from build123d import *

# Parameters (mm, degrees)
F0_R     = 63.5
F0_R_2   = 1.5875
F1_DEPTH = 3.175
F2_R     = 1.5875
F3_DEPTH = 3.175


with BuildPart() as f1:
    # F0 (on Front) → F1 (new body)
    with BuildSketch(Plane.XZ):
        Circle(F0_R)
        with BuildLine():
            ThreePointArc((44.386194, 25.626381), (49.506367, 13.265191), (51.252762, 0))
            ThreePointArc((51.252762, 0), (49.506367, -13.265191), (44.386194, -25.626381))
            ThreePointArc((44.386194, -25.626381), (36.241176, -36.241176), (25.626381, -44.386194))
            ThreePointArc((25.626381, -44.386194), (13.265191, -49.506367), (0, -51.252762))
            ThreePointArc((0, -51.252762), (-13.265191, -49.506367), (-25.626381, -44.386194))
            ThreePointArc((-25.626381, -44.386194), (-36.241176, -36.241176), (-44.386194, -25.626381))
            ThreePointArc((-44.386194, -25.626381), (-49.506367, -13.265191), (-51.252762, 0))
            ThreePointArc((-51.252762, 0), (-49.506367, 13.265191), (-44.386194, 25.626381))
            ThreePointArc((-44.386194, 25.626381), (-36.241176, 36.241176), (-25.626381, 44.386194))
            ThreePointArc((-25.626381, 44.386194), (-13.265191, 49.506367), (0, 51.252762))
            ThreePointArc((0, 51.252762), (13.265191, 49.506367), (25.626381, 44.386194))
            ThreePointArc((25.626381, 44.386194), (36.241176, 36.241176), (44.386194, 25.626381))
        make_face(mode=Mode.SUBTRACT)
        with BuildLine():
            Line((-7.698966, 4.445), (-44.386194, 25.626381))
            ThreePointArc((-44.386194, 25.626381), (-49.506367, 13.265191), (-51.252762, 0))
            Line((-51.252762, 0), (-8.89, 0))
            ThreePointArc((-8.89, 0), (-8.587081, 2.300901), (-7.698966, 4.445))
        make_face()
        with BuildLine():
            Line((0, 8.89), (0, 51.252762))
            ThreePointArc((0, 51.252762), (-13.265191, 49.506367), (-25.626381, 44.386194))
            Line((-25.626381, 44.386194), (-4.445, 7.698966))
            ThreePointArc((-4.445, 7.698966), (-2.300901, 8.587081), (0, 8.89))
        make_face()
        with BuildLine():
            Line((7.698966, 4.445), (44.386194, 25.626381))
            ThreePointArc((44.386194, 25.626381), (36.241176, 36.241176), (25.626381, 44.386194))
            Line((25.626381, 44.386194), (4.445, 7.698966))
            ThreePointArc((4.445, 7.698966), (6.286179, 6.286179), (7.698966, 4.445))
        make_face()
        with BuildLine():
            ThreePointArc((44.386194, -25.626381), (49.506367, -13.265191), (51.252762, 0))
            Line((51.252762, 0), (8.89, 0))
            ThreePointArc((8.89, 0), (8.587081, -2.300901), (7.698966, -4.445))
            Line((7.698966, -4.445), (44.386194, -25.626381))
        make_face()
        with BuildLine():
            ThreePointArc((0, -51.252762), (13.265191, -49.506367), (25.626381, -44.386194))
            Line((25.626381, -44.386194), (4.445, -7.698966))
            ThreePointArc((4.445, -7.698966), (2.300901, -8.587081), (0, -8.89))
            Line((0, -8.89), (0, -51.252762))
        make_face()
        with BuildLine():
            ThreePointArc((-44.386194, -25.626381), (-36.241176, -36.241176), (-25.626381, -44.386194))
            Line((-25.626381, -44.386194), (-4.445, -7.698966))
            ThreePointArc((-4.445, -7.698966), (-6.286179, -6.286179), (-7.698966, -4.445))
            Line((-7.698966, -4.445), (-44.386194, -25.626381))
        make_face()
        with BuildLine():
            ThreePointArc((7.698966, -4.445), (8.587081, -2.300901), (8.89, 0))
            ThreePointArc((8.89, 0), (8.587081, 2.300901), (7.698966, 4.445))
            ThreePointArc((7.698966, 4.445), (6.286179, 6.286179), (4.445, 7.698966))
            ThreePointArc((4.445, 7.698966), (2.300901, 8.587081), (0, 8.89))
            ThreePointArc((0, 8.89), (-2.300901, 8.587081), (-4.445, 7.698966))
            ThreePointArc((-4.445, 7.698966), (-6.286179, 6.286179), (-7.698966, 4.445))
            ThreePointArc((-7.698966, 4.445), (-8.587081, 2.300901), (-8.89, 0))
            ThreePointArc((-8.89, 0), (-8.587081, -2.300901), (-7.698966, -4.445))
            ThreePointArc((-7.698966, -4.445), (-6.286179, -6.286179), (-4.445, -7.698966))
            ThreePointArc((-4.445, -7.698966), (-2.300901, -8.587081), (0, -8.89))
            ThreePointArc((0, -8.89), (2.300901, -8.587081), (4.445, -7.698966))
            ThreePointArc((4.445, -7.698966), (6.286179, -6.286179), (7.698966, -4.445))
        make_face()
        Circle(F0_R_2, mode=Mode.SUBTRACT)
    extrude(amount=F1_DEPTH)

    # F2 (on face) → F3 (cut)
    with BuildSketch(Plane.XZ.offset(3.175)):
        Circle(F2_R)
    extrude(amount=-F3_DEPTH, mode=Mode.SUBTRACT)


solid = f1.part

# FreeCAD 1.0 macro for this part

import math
import FreeCAD as App
import Part
import Sketcher
from FreeCAD import Vector
Q = App.Units.Quantity

doc = App.newDocument("Part")
params = doc.addObject("Spreadsheet::Sheet", "Params")
for row, (alias, value) in enumerate([
    ("sketch1_diameter", "5 in"),
    ("sketch1_diameter2", "0.125 in"),
    ("pad1_length", "0.125 in"),
    ("sketch2_diameter", "0.125 in"),
    ("pocket1_length", "0.125 in"),
], start=1):
    params.set(f"A{row}", alias)
    params.set(f"B{row}", "=" + value)
    params.setAlias(f"B{row}", alias)

body = doc.addObject("PartDesign::Body", "Body")

sketch1 = doc.addObject("Sketcher::SketchObject", "Sketch")
body.addObject(sketch1)
sketch1.AttachmentSupport = (doc.XZ_Plane, [""])
sketch1.MapMode = "FlatFace"
sketch1.addGeometry([
    Part.Circle(Vector(0, 0, 0), Vector(0, 0, 1), 63.5),
    Part.LineSegment(Vector(0, -8.89, 0), Vector(0, -51.252762, 0)),
    Part.ArcOfCircle(Part.Circle(Vector(-0.000004, -0.000014, 0), Vector(0, 0, 1), 51.252748), math.radians(-120.000004), math.radians(-89.999996)),
    Part.LineSegment(Vector(-25.626381, -44.386194, 0), Vector(-4.445, -7.698966, 0)),
    Part.ArcOfCircle(Part.Circle(Vector(-0.000002, -0.000007, 0), Vector(0, 0, 1), 8.889993), math.radians(-120.00001), math.radians(-89.999987)),
    Part.LineSegment(Vector(-7.698966, -4.445, 0), Vector(-44.386194, -25.626381, 0)),
    Part.ArcOfCircle(Part.Circle(Vector(-0.000014, -0.000004, 0), Vector(0, 0, 1), 51.252748), math.radians(179.999996), math.radians(210.000004)),
    Part.LineSegment(Vector(-51.252762, 0, 0), Vector(-8.89, 0, 0)),
    Part.ArcOfCircle(Part.Circle(Vector(-0.000007, -0.000002, 0), Vector(0, 0, 1), 8.889993), math.radians(179.999987), math.radians(210.00001)),
    Part.LineSegment(Vector(7.698966, -4.445, 0), Vector(44.386194, -25.626381, 0)),
    Part.ArcOfCircle(Part.Circle(Vector(0.000011, -0.000011, 0), Vector(0, 0, 1), 51.252747), math.radians(-60.000005), math.radians(-29.999995)),
    Part.LineSegment(Vector(25.626381, -44.386194, 0), Vector(4.445, -7.698966, 0)),
    Part.ArcOfCircle(Part.Circle(Vector(-0.000011, 0.000011, 0), Vector(0, 0, 1), 8.890015), math.radians(-59.999974), math.radians(-30.000026)),
    Part.LineSegment(Vector(-7.698966, 4.445, 0), Vector(-44.386194, 25.626381, 0)),
    Part.ArcOfCircle(Part.Circle(Vector(-0.000011, 0.000011, 0), Vector(0, 0, 1), 51.252747), math.radians(119.999995), math.radians(150.000005)),
    Part.LineSegment(Vector(-25.626381, 44.386194, 0), Vector(-4.445, 7.698966, 0)),
    Part.ArcOfCircle(Part.Circle(Vector(0.000011, -0.000011, 0), Vector(0, 0, 1), 8.890015), math.radians(120.000026), math.radians(149.999974)),
    Part.Circle(Vector(0, 0, 0), Vector(0, 0, 1), 1.5875),
    Part.ArcOfCircle(Part.Circle(Vector(0.000014, 0.000004, 0), Vector(0, 0, 1), 51.252748), math.radians(-0.000004), math.radians(30.000004)),
    Part.LineSegment(Vector(51.252762, 0, 0), Vector(8.89, 0, 0)),
    Part.ArcOfCircle(Part.Circle(Vector(0.000007, 0.000002, 0), Vector(0, 0, 1), 8.889993), math.radians(-0.000013), math.radians(30.00001)),
    Part.LineSegment(Vector(7.698966, 4.445, 0), Vector(44.386194, 25.626381, 0)),
    Part.LineSegment(Vector(0, 8.89, 0), Vector(0, 51.252762, 0)),
    Part.ArcOfCircle(Part.Circle(Vector(0.000004, 0.000014, 0), Vector(0, 0, 1), 51.252748), math.radians(59.999996), math.radians(90.000004)),
    Part.LineSegment(Vector(25.626381, 44.386194, 0), Vector(4.445, 7.698966, 0)),
    Part.ArcOfCircle(Part.Circle(Vector(0.000002, 0.000007, 0), Vector(0, 0, 1), 8.889993), math.radians(59.99999), math.radians(90.000013)),
], False)
sketch1.addConstraint([
    Sketcher.Constraint("Coincident", 1, 2, 2, 2),
    Sketcher.Constraint("Coincident", 2, 1, 3, 1),
    Sketcher.Constraint("Coincident", 3, 2, 4, 1),
    Sketcher.Constraint("Coincident", 4, 2, 1, 1),
    Sketcher.Constraint("Coincident", 5, 2, 6, 2),
    Sketcher.Constraint("Coincident", 6, 1, 7, 1),
    Sketcher.Constraint("Coincident", 7, 2, 8, 1),
    Sketcher.Constraint("Coincident", 8, 2, 5, 1),
    Sketcher.Constraint("Coincident", 9, 2, 10, 2),
    Sketcher.Constraint("Coincident", 10, 1, 11, 1),
    Sketcher.Constraint("Coincident", 11, 2, 12, 1),
    Sketcher.Constraint("Coincident", 12, 2, 9, 1),
    Sketcher.Constraint("Coincident", 13, 2, 14, 2),
    Sketcher.Constraint("Coincident", 14, 1, 15, 1),
    Sketcher.Constraint("Coincident", 15, 2, 16, 1),
    Sketcher.Constraint("Coincident", 16, 2, 13, 1),
    Sketcher.Constraint("Coincident", 18, 1, 19, 1),
    Sketcher.Constraint("Coincident", 19, 2, 20, 1),
    Sketcher.Constraint("Coincident", 20, 2, 21, 1),
    Sketcher.Constraint("Coincident", 21, 2, 18, 2),
    Sketcher.Constraint("Coincident", 22, 2, 23, 2),
    Sketcher.Constraint("Coincident", 23, 1, 24, 1),
    Sketcher.Constraint("Coincident", 24, 2, 25, 1),
    Sketcher.Constraint("Coincident", 25, 2, 22, 1),
    Sketcher.Constraint("Vertical", 1),
    Sketcher.Constraint("Horizontal", 7),
    Sketcher.Constraint("Horizontal", 19),
    Sketcher.Constraint("Vertical", 22),
    Sketcher.Constraint("Coincident", 0, 3, -1, 1),
    Sketcher.Constraint("Coincident", 4, 3, -1, 1),
    Sketcher.Constraint("Coincident", 8, 3, -1, 1),
    Sketcher.Constraint("Coincident", 17, 3, -1, 1),
    Sketcher.Constraint("Coincident", 20, 3, -1, 1),
    Sketcher.Constraint("Coincident", 25, 3, -1, 1),
    Sketcher.Constraint("Coincident", 14, 3, 12, 3),
    Sketcher.Constraint("Coincident", 16, 3, 10, 3),
    Sketcher.Constraint("Equal", 2, 6),
    Sketcher.Constraint("Equal", 4, 8),
    Sketcher.Constraint("Equal", 6, 10),
    Sketcher.Constraint("Equal", 10, 14),
    Sketcher.Constraint("Equal", 12, 16),
    Sketcher.Constraint("Equal", 14, 18),
    Sketcher.Constraint("Equal", 8, 20),
    Sketcher.Constraint("Equal", 18, 23),
    Sketcher.Constraint("Equal", 20, 25),
    Sketcher.Constraint("Symmetric", 10, 3, 12, 3, -1, 1),
    Sketcher.Constraint("Symmetric", 6, 3, 18, 3, -1, 1),
    Sketcher.Constraint("Symmetric", 2, 3, 23, 3, -1, 1),
    Sketcher.Constraint("Symmetric", 2, 3, 10, 3, -2),
    Sketcher.Constraint("Symmetric", 5, 2, 9, 2, -2),
    Sketcher.Constraint("Symmetric", 3, 2, 11, 2, -2),
    Sketcher.Constraint("Symmetric", 8, 2, 12, 2, -2),
    Sketcher.Constraint("PointOnObject", 1, 2, -2),
    Sketcher.Constraint("PointOnObject", 6, 1, -1),
    Sketcher.Constraint("PointOnObject", 18, 1, -1),
    Sketcher.Constraint("PointOnObject", 22, 2, -2),
    Sketcher.Constraint("Perpendicular", 3, 9),
    Sketcher.Constraint("Perpendicular", 5, 11),
    Sketcher.Constraint("Parallel", 9, 13),
    Sketcher.Constraint("Parallel", 11, 15),
    Sketcher.Constraint("Perpendicular", 15, 21),
    Sketcher.Constraint("Perpendicular", 13, 24),
    Sketcher.Constraint("Horizontal", 16, 2, 20, 2),
    Sketcher.Constraint("Horizontal", 14, 1, 23, 1),
    Sketcher.Constraint("Vertical", 5, 2, 13, 2),
    Sketcher.Constraint("Vertical", 2, 1, 14, 1),
    Sketcher.Constraint("Equal", 19, 1),
    Sketcher.Constraint("Diameter", 0, Q("5 in")),
    Sketcher.Constraint("Diameter", 17, Q("0.125 in")),
    Sketcher.Constraint("Angle", 3, Q("60 deg")),
    Sketcher.Constraint("DistanceY", 4, 2, -1, 1, Q("0.35 in")),
    Sketcher.Constraint("DistanceX", 7, 2, 2, 3, Q("0.3499999 in")),
    Sketcher.Constraint("DistanceX", 3, 2, -1, 1, Q("0.175 in")),
    Sketcher.Constraint("DistanceY", 8, 2, -1, 1, Q("0.175 in")),
    Sketcher.Constraint("Radius", 2, Q("51.252748 mm")),
])
sketch1.setExpression("Constraints[67]", "Params.sketch1_diameter")
sketch1.setExpression("Constraints[68]", "Params.sketch1_diameter2")
pad1 = doc.addObject("PartDesign::Pad", "Pad")
body.addObject(pad1)
pad1.Profile = sketch1
pad1.setExpression("Length", "Params.pad1_length")

sketch2 = doc.addObject("Sketcher::SketchObject", "Sketch001")
body.addObject(sketch2)
sketch2.AttachmentSupport = (doc.XZ_Plane, [""])
sketch2.MapMode = "FlatFace"
sketch2.AttachmentOffset = App.Placement(Vector(0, 0, 0.125 * 25.4), App.Rotation())
sketch2.addGeometry(Part.Circle(Vector(0, 0, 0), Vector(0, 0, 1), 1.5875), False)
sketch2.addConstraint([
    Sketcher.Constraint("Coincident", 0, 3, -1, 1),
    Sketcher.Constraint("Diameter", 0, Q("0.125 in")),
])
sketch2.setExpression("Constraints[1]", "Params.sketch2_diameter")
pocket1 = doc.addObject("PartDesign::Pocket", "Pocket")
body.addObject(pocket1)
pocket1.Profile = sketch2
pocket1.setExpression("Length", "Params.pocket1_length")

doc.recompute()
